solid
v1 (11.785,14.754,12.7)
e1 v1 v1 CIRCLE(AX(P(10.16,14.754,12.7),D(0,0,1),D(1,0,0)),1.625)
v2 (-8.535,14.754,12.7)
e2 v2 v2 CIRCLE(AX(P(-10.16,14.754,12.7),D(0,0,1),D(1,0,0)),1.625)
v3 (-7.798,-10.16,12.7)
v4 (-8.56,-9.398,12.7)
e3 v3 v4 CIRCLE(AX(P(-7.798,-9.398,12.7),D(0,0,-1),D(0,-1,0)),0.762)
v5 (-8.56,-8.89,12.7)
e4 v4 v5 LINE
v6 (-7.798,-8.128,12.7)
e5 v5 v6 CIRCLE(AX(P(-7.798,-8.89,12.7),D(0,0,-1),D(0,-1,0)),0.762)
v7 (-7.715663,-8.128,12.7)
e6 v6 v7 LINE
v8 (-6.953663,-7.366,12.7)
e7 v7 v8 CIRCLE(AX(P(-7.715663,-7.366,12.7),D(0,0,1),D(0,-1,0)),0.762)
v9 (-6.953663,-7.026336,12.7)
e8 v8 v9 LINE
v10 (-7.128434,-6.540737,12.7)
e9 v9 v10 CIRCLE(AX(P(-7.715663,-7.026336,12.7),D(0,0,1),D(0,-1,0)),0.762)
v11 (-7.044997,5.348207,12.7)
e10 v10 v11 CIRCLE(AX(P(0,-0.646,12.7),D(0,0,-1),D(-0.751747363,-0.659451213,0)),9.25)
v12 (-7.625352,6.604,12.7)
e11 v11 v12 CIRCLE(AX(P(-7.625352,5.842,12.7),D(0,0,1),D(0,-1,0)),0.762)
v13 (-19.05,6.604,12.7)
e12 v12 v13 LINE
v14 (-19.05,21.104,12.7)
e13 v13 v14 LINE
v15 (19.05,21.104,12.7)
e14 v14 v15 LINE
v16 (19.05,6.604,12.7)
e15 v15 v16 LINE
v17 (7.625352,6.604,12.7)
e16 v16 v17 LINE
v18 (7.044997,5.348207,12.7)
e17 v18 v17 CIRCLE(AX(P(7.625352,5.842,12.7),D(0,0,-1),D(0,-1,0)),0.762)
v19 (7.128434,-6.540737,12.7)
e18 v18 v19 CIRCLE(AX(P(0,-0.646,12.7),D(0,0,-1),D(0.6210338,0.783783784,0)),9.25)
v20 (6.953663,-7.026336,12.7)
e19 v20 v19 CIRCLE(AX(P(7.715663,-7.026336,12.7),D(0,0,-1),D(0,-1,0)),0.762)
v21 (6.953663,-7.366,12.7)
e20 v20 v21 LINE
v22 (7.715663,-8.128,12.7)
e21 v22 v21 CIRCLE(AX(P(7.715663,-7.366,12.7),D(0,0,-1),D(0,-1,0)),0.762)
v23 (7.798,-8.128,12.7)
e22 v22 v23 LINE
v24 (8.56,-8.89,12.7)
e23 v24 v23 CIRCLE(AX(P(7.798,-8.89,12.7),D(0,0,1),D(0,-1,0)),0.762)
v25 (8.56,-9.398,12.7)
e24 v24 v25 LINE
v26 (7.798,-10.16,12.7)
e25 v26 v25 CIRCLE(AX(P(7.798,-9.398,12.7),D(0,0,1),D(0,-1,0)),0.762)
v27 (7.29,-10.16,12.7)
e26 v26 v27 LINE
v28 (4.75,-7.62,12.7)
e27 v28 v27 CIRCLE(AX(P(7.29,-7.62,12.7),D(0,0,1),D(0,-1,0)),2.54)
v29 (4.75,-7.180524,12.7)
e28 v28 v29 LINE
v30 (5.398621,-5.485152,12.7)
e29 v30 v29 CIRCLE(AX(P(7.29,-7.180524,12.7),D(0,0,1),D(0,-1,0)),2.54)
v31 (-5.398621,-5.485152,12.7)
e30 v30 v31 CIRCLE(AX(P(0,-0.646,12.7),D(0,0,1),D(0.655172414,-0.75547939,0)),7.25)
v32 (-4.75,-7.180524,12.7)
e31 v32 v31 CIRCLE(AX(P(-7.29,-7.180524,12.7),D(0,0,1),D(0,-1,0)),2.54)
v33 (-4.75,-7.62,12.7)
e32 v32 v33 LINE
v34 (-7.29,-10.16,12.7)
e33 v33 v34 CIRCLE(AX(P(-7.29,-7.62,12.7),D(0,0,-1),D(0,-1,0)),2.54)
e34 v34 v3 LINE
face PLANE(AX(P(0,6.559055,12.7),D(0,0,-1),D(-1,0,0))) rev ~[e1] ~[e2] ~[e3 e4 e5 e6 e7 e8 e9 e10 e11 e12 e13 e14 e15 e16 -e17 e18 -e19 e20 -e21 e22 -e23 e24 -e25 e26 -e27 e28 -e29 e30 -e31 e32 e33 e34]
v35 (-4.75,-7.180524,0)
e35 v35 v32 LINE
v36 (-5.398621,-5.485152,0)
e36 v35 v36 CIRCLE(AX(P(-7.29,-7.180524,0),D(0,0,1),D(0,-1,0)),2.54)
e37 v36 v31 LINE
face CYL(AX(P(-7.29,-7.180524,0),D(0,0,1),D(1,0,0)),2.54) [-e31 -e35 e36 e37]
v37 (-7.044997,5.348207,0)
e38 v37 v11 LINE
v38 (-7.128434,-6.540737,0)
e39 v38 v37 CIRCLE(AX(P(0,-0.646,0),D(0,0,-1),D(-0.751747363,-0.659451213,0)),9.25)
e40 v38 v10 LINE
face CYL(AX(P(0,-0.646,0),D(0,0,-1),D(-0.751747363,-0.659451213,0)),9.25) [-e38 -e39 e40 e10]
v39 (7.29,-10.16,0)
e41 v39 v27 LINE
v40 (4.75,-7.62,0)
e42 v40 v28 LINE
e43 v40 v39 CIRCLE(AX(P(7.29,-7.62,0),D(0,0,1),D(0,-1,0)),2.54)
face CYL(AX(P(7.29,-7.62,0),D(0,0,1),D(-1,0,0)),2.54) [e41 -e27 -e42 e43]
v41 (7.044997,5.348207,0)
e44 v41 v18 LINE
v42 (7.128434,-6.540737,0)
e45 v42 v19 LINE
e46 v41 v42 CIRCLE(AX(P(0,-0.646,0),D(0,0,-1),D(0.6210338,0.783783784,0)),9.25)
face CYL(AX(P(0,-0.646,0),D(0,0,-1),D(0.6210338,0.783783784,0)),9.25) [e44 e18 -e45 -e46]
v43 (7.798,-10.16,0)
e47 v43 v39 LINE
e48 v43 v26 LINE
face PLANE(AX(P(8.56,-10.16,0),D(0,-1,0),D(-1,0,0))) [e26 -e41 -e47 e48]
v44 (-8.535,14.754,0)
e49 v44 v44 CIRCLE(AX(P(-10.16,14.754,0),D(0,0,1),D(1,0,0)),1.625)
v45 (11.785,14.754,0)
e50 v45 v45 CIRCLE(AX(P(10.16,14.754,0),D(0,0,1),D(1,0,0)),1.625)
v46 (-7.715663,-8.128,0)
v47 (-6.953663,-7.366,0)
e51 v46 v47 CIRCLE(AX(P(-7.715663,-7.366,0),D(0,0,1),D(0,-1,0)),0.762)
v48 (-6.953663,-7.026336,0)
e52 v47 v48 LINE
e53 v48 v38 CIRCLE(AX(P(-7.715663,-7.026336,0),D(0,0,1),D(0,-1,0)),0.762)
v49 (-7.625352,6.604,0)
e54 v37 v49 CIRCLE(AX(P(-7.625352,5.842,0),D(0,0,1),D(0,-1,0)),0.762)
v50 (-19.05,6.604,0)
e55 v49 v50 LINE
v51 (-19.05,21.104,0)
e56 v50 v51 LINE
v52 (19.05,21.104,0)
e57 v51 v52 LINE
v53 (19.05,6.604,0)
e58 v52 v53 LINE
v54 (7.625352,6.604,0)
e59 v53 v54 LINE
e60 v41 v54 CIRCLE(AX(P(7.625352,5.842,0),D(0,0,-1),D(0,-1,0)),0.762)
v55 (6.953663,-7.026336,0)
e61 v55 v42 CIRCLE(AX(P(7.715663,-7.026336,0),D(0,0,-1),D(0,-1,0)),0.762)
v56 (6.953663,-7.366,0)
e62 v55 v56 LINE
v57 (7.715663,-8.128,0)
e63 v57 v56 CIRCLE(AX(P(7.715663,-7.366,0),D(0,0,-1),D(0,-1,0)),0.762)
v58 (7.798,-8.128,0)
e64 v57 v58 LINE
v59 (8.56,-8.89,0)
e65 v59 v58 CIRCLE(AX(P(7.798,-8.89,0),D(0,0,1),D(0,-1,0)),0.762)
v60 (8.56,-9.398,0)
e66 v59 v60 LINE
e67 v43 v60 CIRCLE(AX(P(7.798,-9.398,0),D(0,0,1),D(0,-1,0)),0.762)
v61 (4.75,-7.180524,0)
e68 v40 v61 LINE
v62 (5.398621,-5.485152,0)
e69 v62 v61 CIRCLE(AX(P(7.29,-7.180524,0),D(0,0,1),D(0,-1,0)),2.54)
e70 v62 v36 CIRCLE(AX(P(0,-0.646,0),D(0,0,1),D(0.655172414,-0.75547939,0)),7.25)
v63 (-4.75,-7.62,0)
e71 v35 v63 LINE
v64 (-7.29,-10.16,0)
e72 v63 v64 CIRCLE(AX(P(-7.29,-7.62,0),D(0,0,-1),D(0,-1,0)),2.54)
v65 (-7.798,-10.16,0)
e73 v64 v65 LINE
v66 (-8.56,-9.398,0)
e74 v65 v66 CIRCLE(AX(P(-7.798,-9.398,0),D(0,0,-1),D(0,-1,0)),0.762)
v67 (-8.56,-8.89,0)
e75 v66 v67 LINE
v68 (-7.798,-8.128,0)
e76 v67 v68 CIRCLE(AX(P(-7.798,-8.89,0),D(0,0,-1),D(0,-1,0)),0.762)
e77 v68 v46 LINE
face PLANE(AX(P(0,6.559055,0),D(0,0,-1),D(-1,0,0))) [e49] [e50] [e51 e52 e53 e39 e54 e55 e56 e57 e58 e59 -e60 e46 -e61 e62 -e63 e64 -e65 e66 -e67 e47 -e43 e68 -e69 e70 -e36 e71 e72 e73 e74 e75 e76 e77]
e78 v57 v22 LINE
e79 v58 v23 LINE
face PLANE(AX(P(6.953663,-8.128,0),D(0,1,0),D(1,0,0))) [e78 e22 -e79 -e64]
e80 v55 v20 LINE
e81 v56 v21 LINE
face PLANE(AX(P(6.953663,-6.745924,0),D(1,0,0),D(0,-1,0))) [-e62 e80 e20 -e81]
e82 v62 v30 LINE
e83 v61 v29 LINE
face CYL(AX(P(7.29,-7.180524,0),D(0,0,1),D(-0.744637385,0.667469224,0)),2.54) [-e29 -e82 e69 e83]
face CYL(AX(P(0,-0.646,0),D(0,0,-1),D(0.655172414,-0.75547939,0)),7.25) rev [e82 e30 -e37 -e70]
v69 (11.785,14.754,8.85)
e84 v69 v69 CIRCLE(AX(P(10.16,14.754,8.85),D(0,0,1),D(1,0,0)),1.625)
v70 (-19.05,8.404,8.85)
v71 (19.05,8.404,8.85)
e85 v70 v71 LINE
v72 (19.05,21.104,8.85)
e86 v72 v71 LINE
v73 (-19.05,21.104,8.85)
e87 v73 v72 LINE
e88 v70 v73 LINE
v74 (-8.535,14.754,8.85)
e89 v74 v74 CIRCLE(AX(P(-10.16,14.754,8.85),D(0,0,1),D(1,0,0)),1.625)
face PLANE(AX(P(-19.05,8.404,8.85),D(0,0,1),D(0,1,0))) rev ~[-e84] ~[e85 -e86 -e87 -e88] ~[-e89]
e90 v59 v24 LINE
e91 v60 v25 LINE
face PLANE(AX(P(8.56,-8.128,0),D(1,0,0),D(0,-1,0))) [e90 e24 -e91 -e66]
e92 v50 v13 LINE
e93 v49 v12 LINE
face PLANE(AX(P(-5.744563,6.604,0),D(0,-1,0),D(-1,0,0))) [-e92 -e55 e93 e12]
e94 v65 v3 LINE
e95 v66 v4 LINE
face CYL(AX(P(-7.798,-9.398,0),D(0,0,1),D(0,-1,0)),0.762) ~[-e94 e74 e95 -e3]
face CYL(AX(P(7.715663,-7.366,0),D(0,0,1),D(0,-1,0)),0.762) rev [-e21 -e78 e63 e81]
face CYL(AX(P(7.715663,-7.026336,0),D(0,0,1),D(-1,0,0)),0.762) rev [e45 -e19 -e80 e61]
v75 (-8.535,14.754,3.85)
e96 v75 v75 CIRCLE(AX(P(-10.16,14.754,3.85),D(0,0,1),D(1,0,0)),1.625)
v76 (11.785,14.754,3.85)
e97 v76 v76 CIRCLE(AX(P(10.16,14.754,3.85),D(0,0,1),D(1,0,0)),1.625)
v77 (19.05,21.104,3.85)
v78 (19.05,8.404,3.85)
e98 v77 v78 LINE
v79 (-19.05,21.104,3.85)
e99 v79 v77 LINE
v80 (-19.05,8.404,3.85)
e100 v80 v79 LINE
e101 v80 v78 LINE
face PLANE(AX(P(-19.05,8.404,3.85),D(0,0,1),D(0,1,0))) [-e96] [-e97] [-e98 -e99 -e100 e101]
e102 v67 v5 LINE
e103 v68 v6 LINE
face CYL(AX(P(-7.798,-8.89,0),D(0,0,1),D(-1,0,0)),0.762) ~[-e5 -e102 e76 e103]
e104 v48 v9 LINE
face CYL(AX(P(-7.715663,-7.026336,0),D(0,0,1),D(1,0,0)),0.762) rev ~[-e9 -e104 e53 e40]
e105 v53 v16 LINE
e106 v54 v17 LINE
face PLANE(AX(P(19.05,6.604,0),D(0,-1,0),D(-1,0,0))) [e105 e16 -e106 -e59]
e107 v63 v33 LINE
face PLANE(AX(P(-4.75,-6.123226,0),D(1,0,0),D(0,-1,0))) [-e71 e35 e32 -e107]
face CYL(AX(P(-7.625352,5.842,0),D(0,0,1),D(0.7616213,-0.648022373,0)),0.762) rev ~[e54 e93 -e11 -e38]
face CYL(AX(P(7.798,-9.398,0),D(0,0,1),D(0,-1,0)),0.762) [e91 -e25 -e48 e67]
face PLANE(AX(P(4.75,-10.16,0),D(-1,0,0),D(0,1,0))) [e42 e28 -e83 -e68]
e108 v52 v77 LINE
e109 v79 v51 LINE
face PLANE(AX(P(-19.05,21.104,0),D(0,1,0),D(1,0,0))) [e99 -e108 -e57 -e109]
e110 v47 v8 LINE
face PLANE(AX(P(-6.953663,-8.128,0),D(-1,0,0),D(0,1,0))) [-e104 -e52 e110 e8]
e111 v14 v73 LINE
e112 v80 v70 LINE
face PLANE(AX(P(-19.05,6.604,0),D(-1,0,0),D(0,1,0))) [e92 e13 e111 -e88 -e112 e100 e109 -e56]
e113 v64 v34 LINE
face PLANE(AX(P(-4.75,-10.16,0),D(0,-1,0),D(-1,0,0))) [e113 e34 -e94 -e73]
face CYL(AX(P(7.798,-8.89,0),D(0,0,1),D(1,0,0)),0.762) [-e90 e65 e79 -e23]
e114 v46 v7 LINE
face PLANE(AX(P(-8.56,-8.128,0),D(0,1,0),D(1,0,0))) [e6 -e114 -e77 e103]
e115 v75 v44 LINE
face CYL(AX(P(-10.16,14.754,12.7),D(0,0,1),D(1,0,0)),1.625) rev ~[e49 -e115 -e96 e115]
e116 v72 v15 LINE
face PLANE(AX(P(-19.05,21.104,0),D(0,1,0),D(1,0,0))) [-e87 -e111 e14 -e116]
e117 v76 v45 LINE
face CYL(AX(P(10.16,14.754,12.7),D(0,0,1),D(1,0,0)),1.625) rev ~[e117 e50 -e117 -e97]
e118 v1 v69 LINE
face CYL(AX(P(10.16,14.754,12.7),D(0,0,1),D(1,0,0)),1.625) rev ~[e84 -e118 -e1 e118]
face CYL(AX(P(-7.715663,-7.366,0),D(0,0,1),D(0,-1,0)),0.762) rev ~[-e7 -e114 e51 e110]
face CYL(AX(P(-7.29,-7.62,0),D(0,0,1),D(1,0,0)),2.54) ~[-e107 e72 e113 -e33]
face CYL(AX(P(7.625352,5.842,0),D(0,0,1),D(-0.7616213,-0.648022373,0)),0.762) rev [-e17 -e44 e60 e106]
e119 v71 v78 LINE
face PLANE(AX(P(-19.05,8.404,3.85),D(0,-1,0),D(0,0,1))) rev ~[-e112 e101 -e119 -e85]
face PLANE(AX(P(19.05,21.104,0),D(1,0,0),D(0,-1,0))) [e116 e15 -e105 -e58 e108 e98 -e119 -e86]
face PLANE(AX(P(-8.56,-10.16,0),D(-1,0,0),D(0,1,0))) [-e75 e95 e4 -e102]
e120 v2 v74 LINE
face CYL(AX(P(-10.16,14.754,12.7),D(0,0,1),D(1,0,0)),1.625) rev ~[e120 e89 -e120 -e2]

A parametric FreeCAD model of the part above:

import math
import FreeCAD as App
import Part
import Sketcher

V = App.Vector
Q = App.Units.Quantity


def edges_at(feature, points):
    """Names of the edges that pass closest to the given points."""
    edges = feature.Shape.Edges
    near = lambda p: min(range(len(edges)), key=lambda i: edges[i].distToShape(Part.Vertex(*p))[0])
    return sorted({f"Edge{near(p) + 1}" for p in points})


def add_polygon(sketch, points):
    """Adds a closed chain of lines whose ends are joined by coincident constraints."""
    first, n = sketch.GeometryCount, len(points)
    for a, b in zip(points, points[1:] + points[:1]):
        sketch.addGeometry(Part.LineSegment(App.Vector(*a, 0), App.Vector(*b, 0)), False)
    for i in range(n):
        sketch.addConstraint(Sketcher.Constraint("Coincident", first + i, 2, first + (i + 1) % n, 1))

doc = App.newDocument("Part")
body = doc.addObject("PartDesign::Body", "Body")

sketch1 = body.newObject("Sketcher::SketchObject", "Sketch")
sketch1.AttachmentSupport = (doc.getObject("XY_Plane"), [""])
sketch1.MapMode = "FlatFace"
sketch1.addGeometry(Part.LineSegment(V(-4.75, -10.16, 0), V(-4.75, -6.123226, 0)), False)
sketch1.addGeometry(Part.ArcOfCircle(Part.Circle(V(0, -0.646, 0), V(0, 0, 1), 7.25), math.radians(-49.067275), math.radians(229.067275)), False)
sketch1.addGeometry(Part.LineSegment(V(4.75, -6.123226, 0), V(4.75, -10.16, 0)), False)
sketch1.addGeometry(Part.LineSegment(V(4.75, -10.16, 0), V(8.56, -10.16, 0)), False)
sketch1.addGeometry(Part.LineSegment(V(8.56, -10.16, 0), V(8.56, -8.128, 0)), False)
sketch1.addGeometry(Part.LineSegment(V(8.56, -8.128, 0), V(6.953663, -8.128, 0)), False)
sketch1.addGeometry(Part.LineSegment(V(6.953663, -8.128, 0), V(6.953663, -6.745924, 0)), False)
sketch1.addGeometry(Part.ArcOfCircle(Part.Circle(V(0, -0.646, 0), V(0, 0, 1), 9.25), math.radians(-41.258033), math.radians(51.608333)), False)
sketch1.addGeometry(Part.LineSegment(V(5.744563, 6.604, 0), V(19.05, 6.604, 0)), False)
sketch1.addGeometry(Part.LineSegment(V(19.05, 6.604, 0), V(19.05, 21.104, 0)), False)
sketch1.addGeometry(Part.LineSegment(V(19.05, 21.104, 0), V(-19.05, 21.104, 0)), False)
sketch1.addGeometry(Part.LineSegment(V(-19.05, 21.104, 0), V(-19.05, 6.604, 0)), False)
sketch1.addGeometry(Part.LineSegment(V(-19.05, 6.604, 0), V(-5.744563, 6.604, 0)), False)
sketch1.addGeometry(Part.ArcOfCircle(Part.Circle(V(0, -0.646, 0), V(0, 0, 1), 9.25), math.radians(128.391667), math.radians(221.258033)), False)
sketch1.addGeometry(Part.LineSegment(V(-6.953663, -6.745924, 0), V(-6.953663, -8.128, 0)), False)
sketch1.addGeometry(Part.LineSegment(V(-6.953663, -8.128, 0), V(-8.56, -8.128, 0)), False)
sketch1.addGeometry(Part.LineSegment(V(-8.56, -8.128, 0), V(-8.56, -10.16, 0)), False)
sketch1.addGeometry(Part.LineSegment(V(-8.56, -10.16, 0), V(-4.75, -10.16, 0)), False)
sketch1.addConstraint(Sketcher.Constraint("Coincident", 0, 2, 1, 2))
sketch1.addConstraint(Sketcher.Constraint("Coincident", 1, 1, 2, 1))
sketch1.addConstraint(Sketcher.Constraint("Coincident", 2, 2, 3, 1))
sketch1.addConstraint(Sketcher.Constraint("Coincident", 3, 2, 4, 1))
sketch1.addConstraint(Sketcher.Constraint("Coincident", 4, 2, 5, 1))
sketch1.addConstraint(Sketcher.Constraint("Coincident", 5, 2, 6, 1))
sketch1.addConstraint(Sketcher.Constraint("Coincident", 6, 2, 7, 1))
sketch1.addConstraint(Sketcher.Constraint("Coincident", 7, 2, 8, 1))
sketch1.addConstraint(Sketcher.Constraint("Coincident", 8, 2, 9, 1))
sketch1.addConstraint(Sketcher.Constraint("Coincident", 9, 2, 10, 1))
sketch1.addConstraint(Sketcher.Constraint("Coincident", 10, 2, 11, 1))
sketch1.addConstraint(Sketcher.Constraint("Coincident", 11, 2, 12, 1))
sketch1.addConstraint(Sketcher.Constraint("Coincident", 12, 2, 13, 1))
sketch1.addConstraint(Sketcher.Constraint("Coincident", 13, 2, 14, 1))
sketch1.addConstraint(Sketcher.Constraint("Coincident", 14, 2, 15, 1))
sketch1.addConstraint(Sketcher.Constraint("Coincident", 15, 2, 16, 1))
sketch1.addConstraint(Sketcher.Constraint("Coincident", 16, 2, 17, 1))
sketch1.addConstraint(Sketcher.Constraint("Coincident", 17, 2, 0, 1))
sketch1.addConstraint(Sketcher.Constraint("Vertical", 0))
sketch1.addConstraint(Sketcher.Constraint("Vertical", 2))
sketch1.addConstraint(Sketcher.Constraint("Horizontal", 3))
sketch1.addConstraint(Sketcher.Constraint("Vertical", 4))
sketch1.addConstraint(Sketcher.Constraint("Horizontal", 5))
sketch1.addConstraint(Sketcher.Constraint("Vertical", 6))
sketch1.addConstraint(Sketcher.Constraint("Horizontal", 8))
sketch1.addConstraint(Sketcher.Constraint("Vertical", 9))
sketch1.addConstraint(Sketcher.Constraint("Horizontal", 10))
sketch1.addConstraint(Sketcher.Constraint("Vertical", 11))
sketch1.addConstraint(Sketcher.Constraint("Horizontal", 12))
sketch1.addConstraint(Sketcher.Constraint("Vertical", 14))
sketch1.addConstraint(Sketcher.Constraint("Horizontal", 15))
sketch1.addConstraint(Sketcher.Constraint("Vertical", 16))
sketch1.addConstraint(Sketcher.Constraint("Horizontal", 17))
sketch1.addConstraint(Sketcher.Constraint("Coincident", 7, 3, 1, 3))
sketch1.addConstraint(Sketcher.Constraint("Coincident", 13, 3, 1, 3))
sketch1.addConstraint(Sketcher.Constraint("Equal", 7, 13))
sketch1.addConstraint(Sketcher.Constraint("Symmetric", 0, 2, 1, 1, -2))
sketch1.addConstraint(Sketcher.Constraint("Symmetric", 8, 2, 11, 2, -2))
sketch1.addConstraint(Sketcher.Constraint("Symmetric", 5, 2, 14, 2, -2))
sketch1.addConstraint(Sketcher.Constraint("Symmetric", 3, 2, 16, 2, -2))
sketch1.addConstraint(Sketcher.Constraint("DistanceX", 10, 2, 10, 1, Q("1.5 in")))
sketch1.addConstraint(Sketcher.Constraint("DistanceX", 3, 1, 3, 2, Q("0.15 in")))
sketch1.addConstraint(Sketcher.Constraint("DistanceY", 4, 1, 4, 2, Q("0.08 in")))
sketch1.addConstraint(Sketcher.Constraint("DistanceY", 2, 2, -1, 1, Q("0.4 in")))
sketch1.addConstraint(Sketcher.Constraint("DistanceY", -1, 1, 7, 2, Q("0.26 in")))
sketch1.addConstraint(Sketcher.Constraint("Radius", 1, Q("7.25 mm")))
sketch1.addConstraint(Sketcher.Constraint("Radius", 7, Q("9.25 mm")))
sketch1.addConstraint(Sketcher.Constraint("DistanceY", 9, 1, 9, 2, Q("14.5 mm")))
sketch1.addConstraint(Sketcher.Constraint("DistanceY", 1, 3, -1, 1, Q("0.646 mm")))
sketch1.addConstraint(Sketcher.Constraint("DistanceX", 0, 2, -1, 1, Q("4.75 mm")))
sketch1.addConstraint(Sketcher.Constraint("DistanceY", 6, 2, 1, 1, Q("0.622698 mm")))
pad1 = body.newObject("PartDesign::Pad", "Pad")
pad1.Profile = sketch1
pad1.Length = Q("0.5 in")

sketch2 = body.newObject("Sketcher::SketchObject", "Sketch001")
sketch2.AttachmentSupport = (doc.getObject("YZ_Plane"), [""])
sketch2.MapMode = "FlatFace"
sketch2.AttachmentOffset = App.Placement(V(0, 0, -0.75 * 25.4), App.Rotation())
add_polygon(sketch2, [(21.104, 3.85), (8.404, 3.85), (8.404, 8.85), (21.104, 8.85)])
sketch2.addConstraint(Sketcher.Constraint("Horizontal", 0))
sketch2.addConstraint(Sketcher.Constraint("Vertical", 1))
sketch2.addConstraint(Sketcher.Constraint("Horizontal", 2))
sketch2.addConstraint(Sketcher.Constraint("Vertical", 3))
sketch2.addConstraint(Sketcher.Constraint("DistanceX", 0, 2, 0, 1, Q("0.5 in")))
sketch2.addConstraint(Sketcher.Constraint("DistanceY", 1, 1, 1, 2, Q("5 mm")))
sketch2.addConstraint(Sketcher.Constraint("DistanceX", -1, 1, 0, 2, Q("8.404 mm")))
sketch2.addConstraint(Sketcher.Constraint("DistanceY", -1, 1, 0, 2, Q("3.85 mm")))
pocket1 = body.newObject("PartDesign::Pocket", "Pocket")
pocket1.Profile = sketch2
pocket1.Type = "ThroughAll"
pocket1.Midplane = True

sketch3 = body.newObject("Sketcher::SketchObject", "Sketch002")
sketch3.AttachmentSupport = (doc.getObject("XY_Plane"), [""])
sketch3.MapMode = "FlatFace"
sketch3.AttachmentOffset = App.Placement(V(0, 0, 0.5 * 25.4), App.Rotation())
sketch3.addGeometry(Part.Circle(V(-10.16, 14.754, 0), V(0, 0, 1), 1.625), False)
sketch3.addGeometry(Part.Circle(V(10.16, 14.754, 0), V(0, 0, 1), 1.625), False)
sketch3.addConstraint(Sketcher.Constraint("Equal", 0, 1))
sketch3.addConstraint(Sketcher.Constraint("Symmetric", 0, 3, 1, 3, -2))
sketch3.addConstraint(Sketcher.Constraint("DistanceX", 0, 3, -1, 1, Q("0.4 in")))
sketch3.addConstraint(Sketcher.Constraint("Diameter", 0, Q("3.25 mm")))
sketch3.addConstraint(Sketcher.Constraint("DistanceY", -1, 1, 0, 3, Q("14.754 mm")))
pocket2 = body.newObject("PartDesign::Pocket", "Pocket001")
pocket2.Profile = sketch3
pocket2.Type = "ThroughAll"
doc.recompute()

fillet = body.newObject("PartDesign::Fillet", "Fillet")
fillet.Base = (pocket2, edges_at(pocket2, [
    (4.75, -10.16, 6.35),
    (4.75, -6.123, 6.35),
    (-4.75, -6.123, 6.35),
    (-4.75, -10.16, 6.35),
]))
fillet.Radius = Q("0.1 in")
doc.recompute()

fillet2 = body.newObject("PartDesign::Fillet", "Fillet001")
fillet2.Base = (fillet, edges_at(fillet, [
    (-8.56, -8.128, 6.35),
    (-6.954, -8.128, 6.35),
    (-6.954, -6.746, 6.35),
    (-5.745, 6.604, 6.35),
    (5.745, 6.604, 6.35),
    (6.954, -6.746, 6.35),
    (6.954, -8.128, 6.35),
    (8.56, -8.128, 6.35),
    (8.56, -10.16, 6.35),
    (-8.56, -10.16, 6.35),
]))
fillet2.Radius = Q("0.03 in")

doc.recompute()
